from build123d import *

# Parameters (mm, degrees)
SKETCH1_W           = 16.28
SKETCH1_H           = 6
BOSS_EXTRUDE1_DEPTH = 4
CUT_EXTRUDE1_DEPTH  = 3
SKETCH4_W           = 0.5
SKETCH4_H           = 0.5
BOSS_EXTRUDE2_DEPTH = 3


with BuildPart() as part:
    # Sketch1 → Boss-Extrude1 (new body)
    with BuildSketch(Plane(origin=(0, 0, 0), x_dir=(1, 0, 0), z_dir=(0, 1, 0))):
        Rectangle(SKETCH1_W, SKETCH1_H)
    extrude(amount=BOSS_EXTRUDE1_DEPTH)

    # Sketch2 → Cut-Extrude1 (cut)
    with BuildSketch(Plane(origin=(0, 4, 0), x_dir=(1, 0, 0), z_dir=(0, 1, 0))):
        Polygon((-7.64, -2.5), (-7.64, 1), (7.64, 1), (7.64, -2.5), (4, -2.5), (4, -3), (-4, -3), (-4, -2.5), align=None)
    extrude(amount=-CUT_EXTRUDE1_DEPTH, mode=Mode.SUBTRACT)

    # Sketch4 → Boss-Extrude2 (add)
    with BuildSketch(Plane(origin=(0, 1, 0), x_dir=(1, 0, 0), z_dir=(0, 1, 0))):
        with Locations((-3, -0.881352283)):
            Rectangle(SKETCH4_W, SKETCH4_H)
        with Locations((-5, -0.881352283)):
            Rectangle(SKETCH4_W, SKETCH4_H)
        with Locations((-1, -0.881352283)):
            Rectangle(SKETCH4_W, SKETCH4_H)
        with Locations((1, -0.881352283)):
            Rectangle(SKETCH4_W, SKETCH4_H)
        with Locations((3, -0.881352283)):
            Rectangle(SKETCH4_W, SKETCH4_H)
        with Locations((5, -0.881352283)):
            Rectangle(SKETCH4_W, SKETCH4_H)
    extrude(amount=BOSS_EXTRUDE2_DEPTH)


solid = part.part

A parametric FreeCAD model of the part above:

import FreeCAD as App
import Part
import Sketcher

V = App.Vector

doc = App.newDocument("Part")
body = doc.addObject("PartDesign::Body", "Body")

# Sketch on XZ plane
sketch1 = body.newObject("Sketcher::SketchObject", "Sketch")
sketch1.AttachmentSupport = (doc.getObject("XZ_Plane"), [""])
sketch1.MapMode = "FlatFace"
sketch1.addGeometry([
    Part.LineSegment(V(-8.14, -3, 0), V(-8.14, 3, 0)),
    Part.LineSegment(V(-8.14, 3, 0), V(8.14, 3, 0)),
    Part.LineSegment(V(8.14, 3, 0), V(8.14, -3, 0)),
    Part.LineSegment(V(8.14, -3, 0), V(-8.14, -3, 0)),
], False)
sketch1.addConstraint([
    Sketcher.Constraint("Coincident", 0, 2, 1, 1),
    Sketcher.Constraint("Coincident", 1, 2, 2, 1),
    Sketcher.Constraint("Coincident", 2, 2, 3, 1),
    Sketcher.Constraint("Coincident", 3, 2, 0, 1),
    Sketcher.Constraint("Vertical", 0),
    Sketcher.Constraint("Horizontal", 1),
    Sketcher.Constraint("Vertical", 2),
    Sketcher.Constraint("Horizontal", 3),
    Sketcher.Constraint("Symmetric", 0, 2, 2, 2, -1, 1),
    Sketcher.Constraint("DistanceY", 0, 1, 0, 2, 6.0),
    Sketcher.Constraint("DistanceX", 1, 1, 1, 2, 16.28),
])
pad1 = body.newObject("PartDesign::Pad", "Pad")
pad1.Profile = sketch1
pad1.Length = 4
pad1.Reversed = True

# Sketch on XZ plane
sketch2 = body.newObject("Sketcher::SketchObject", "Sketch001")
sketch2.AttachmentSupport = (doc.getObject("XZ_Plane"), [""])
sketch2.MapMode = "FlatFace"
sketch2.AttachmentOffset = App.Placement(V(0, 0, -4), App.Rotation())
sketch2.addGeometry([
    Part.LineSegment(V(-7.64, -1, 0), V(-7.64, 2.5, 0)),  # 0
    Part.LineSegment(V(-7.64, 2.5, 0), V(-4, 2.5, 0)),  # 1
    Part.LineSegment(V(-4, 2.5, 0), V(-4, 3, 0)),  # 2
    Part.LineSegment(V(-4, 3, 0), V(4, 3, 0)),  # 3
    Part.LineSegment(V(4, 3, 0), V(4, 2.5, 0)),  # 4
    Part.LineSegment(V(4, 2.5, 0), V(7.64, 2.5, 0)),  # 5
    Part.LineSegment(V(7.64, 2.5, 0), V(7.64, -1, 0)),  # 6
    Part.LineSegment(V(7.64, -1, 0), V(-7.64, -1, 0)),  # 7
], False)
sketch2.addConstraint([
    Sketcher.Constraint("Coincident", 0, 2, 1, 1),
    Sketcher.Constraint("Coincident", 1, 2, 2, 1),
    Sketcher.Constraint("Coincident", 2, 2, 3, 1),
    Sketcher.Constraint("Coincident", 3, 2, 4, 1),
    Sketcher.Constraint("Coincident", 4, 2, 5, 1),
    Sketcher.Constraint("Coincident", 5, 2, 6, 1),
    Sketcher.Constraint("Coincident", 6, 2, 7, 1),
    Sketcher.Constraint("Coincident", 7, 2, 0, 1),
    Sketcher.Constraint("Vertical", 0),
    Sketcher.Constraint("Horizontal", 1),
    Sketcher.Constraint("Vertical", 2),
    Sketcher.Constraint("Horizontal", 3),
    Sketcher.Constraint("Vertical", 4),
    Sketcher.Constraint("Horizontal", 5),
    Sketcher.Constraint("Vertical", 6),
    Sketcher.Constraint("Horizontal", 7),
    Sketcher.Constraint("Symmetric", 1, 2, 4, 2, -2),
    Sketcher.Constraint("Equal", 1, 5),
    Sketcher.Constraint("DistanceX", 3, 1, 3, 2, 8.0),
    Sketcher.Constraint("DistanceY", 0, 1, 0, 2, 3.5),
    Sketcher.Constraint("DistanceY", 2, 1, 2, 2, 0.5),
    Sketcher.Constraint("DistanceY", -1, 1, 2, 2, 3.0),
    Sketcher.Constraint("DistanceX", 1, 1, 1, 2, 3.64),
])
pocket1 = body.newObject("PartDesign::Pocket", "Pocket")
pocket1.Profile = sketch2
pocket1.Length = 3
pocket1.Reversed = True

# Sketch on XZ plane
sketch3 = body.newObject("Sketcher::SketchObject", "Sketch002")
sketch3.AttachmentSupport = (doc.getObject("XZ_Plane"), [""])
sketch3.MapMode = "FlatFace"
sketch3.AttachmentOffset = App.Placement(V(0, 0, -1), App.Rotation())
sketch3.addGeometry([
    Part.LineSegment(V(-3.25, 0.631352, 0), V(-3.25, 1.131352, 0)),  # 0
    Part.LineSegment(V(-3.25, 1.131352, 0), V(-2.75, 1.131352, 0)),  # 1
    Part.LineSegment(V(-2.75, 1.131352, 0), V(-2.75, 0.631352, 0)),  # 2
    Part.LineSegment(V(-2.75, 0.631352, 0), V(-3.25, 0.631352, 0)),  # 3
    Part.LineSegment(V(-5.25, 0.631352, 0), V(-5.25, 1.131352, 0)),  # 4
    Part.LineSegment(V(-5.25, 1.131352, 0), V(-4.75, 1.131352, 0)),  # 5
    Part.LineSegment(V(-4.75, 1.131352, 0), V(-4.75, 0.631352, 0)),  # 6
    Part.LineSegment(V(-4.75, 0.631352, 0), V(-5.25, 0.631352, 0)),  # 7
    Part.LineSegment(V(-1.25, 0.631352, 0), V(-1.25, 1.131352, 0)),  # 8
    Part.LineSegment(V(-1.25, 1.131352, 0), V(-0.75, 1.131352, 0)),  # 9
    Part.LineSegment(V(-0.75, 1.131352, 0), V(-0.75, 0.631352, 0)),  # 10
    Part.LineSegment(V(-0.75, 0.631352, 0), V(-1.25, 0.631352, 0)),  # 11
    Part.LineSegment(V(0.75, 0.631352, 0), V(0.75, 1.131352, 0)),  # 12
    Part.LineSegment(V(0.75, 1.131352, 0), V(1.25, 1.131352, 0)),  # 13
    Part.LineSegment(V(1.25, 1.131352, 0), V(1.25, 0.631352, 0)),  # 14
    Part.LineSegment(V(1.25, 0.631352, 0), V(0.75, 0.631352, 0)),  # 15
    Part.LineSegment(V(2.75, 0.631352, 0), V(2.75, 1.131352, 0)),  # 16
    Part.LineSegment(V(2.75, 1.131352, 0), V(3.25, 1.131352, 0)),  # 17
    Part.LineSegment(V(3.25, 1.131352, 0), V(3.25, 0.631352, 0)),  # 18
    Part.LineSegment(V(3.25, 0.631352, 0), V(2.75, 0.631352, 0)),  # 19
    Part.LineSegment(V(4.75, 0.631352, 0), V(4.75, 1.131352, 0)),  # 20
    Part.LineSegment(V(4.75, 1.131352, 0), V(5.25, 1.131352, 0)),  # 21
    Part.LineSegment(V(5.25, 1.131352, 0), V(5.25, 0.631352, 0)),  # 22
    Part.LineSegment(V(5.25, 0.631352, 0), V(4.75, 0.631352, 0)),  # 23
], False)
sketch3.addConstraint([
    Sketcher.Constraint("Coincident", 0, 2, 1, 1),
    Sketcher.Constraint("Coincident", 1, 2, 2, 1),
    Sketcher.Constraint("Coincident", 2, 2, 3, 1),
    Sketcher.Constraint("Coincident", 3, 2, 0, 1),
    Sketcher.Constraint("Coincident", 4, 2, 5, 1),
    Sketcher.Constraint("Coincident", 5, 2, 6, 1),
    Sketcher.Constraint("Coincident", 6, 2, 7, 1),
    Sketcher.Constraint("Coincident", 7, 2, 4, 1),
    Sketcher.Constraint("Coincident", 8, 2, 9, 1),
    Sketcher.Constraint("Coincident", 9, 2, 10, 1),
    Sketcher.Constraint("Coincident", 10, 2, 11, 1),
    Sketcher.Constraint("Coincident", 11, 2, 8, 1),
    Sketcher.Constraint("Coincident", 12, 2, 13, 1),
    Sketcher.Constraint("Coincident", 13, 2, 14, 1),
    Sketcher.Constraint("Coincident", 14, 2, 15, 1),
    Sketcher.Constraint("Coincident", 15, 2, 12, 1),
    Sketcher.Constraint("Coincident", 16, 2, 17, 1),
    Sketcher.Constraint("Coincident", 17, 2, 18, 1),
    Sketcher.Constraint("Coincident", 18, 2, 19, 1),
    Sketcher.Constraint("Coincident", 19, 2, 16, 1),
    Sketcher.Constraint("Coincident", 20, 2, 21, 1),
    Sketcher.Constraint("Coincident", 21, 2, 22, 1),
    Sketcher.Constraint("Coincident", 22, 2, 23, 1),
    Sketcher.Constraint("Coincident", 23, 2, 20, 1),
    Sketcher.Constraint("Vertical", 0),
    Sketcher.Constraint("Horizontal", 1),
    Sketcher.Constraint("Vertical", 2),
    Sketcher.Constraint("Horizontal", 3),
    Sketcher.Constraint("Vertical", 4),
    Sketcher.Constraint("Horizontal", 5),
    Sketcher.Constraint("Vertical", 6),
    Sketcher.Constraint("Horizontal", 7),
    Sketcher.Constraint("Vertical", 8),
    Sketcher.Constraint("Horizontal", 9),
    Sketcher.Constraint("Vertical", 10),
    Sketcher.Constraint("Horizontal", 11),
    Sketcher.Constraint("Vertical", 12),
    Sketcher.Constraint("Horizontal", 13),
    Sketcher.Constraint("Vertical", 14),
    Sketcher.Constraint("Horizontal", 15),
    Sketcher.Constraint("Vertical", 16),
    Sketcher.Constraint("Horizontal", 17),
    Sketcher.Constraint("Vertical", 18),
    Sketcher.Constraint("Horizontal", 19),
    Sketcher.Constraint("Vertical", 20),
    Sketcher.Constraint("Horizontal", 21),
    Sketcher.Constraint("Vertical", 22),
    Sketcher.Constraint("Horizontal", 23),
    Sketcher.Constraint("Symmetric", 9, 2, 12, 2, -2),
    Sketcher.Constraint("Symmetric", 11, 2, 14, 2, -2),
    Sketcher.Constraint("Symmetric", 1, 2, 16, 2, -2),
    Sketcher.Constraint("Symmetric", 3, 2, 18, 2, -2),
    Sketcher.Constraint("Symmetric", 5, 2, 20, 2, -2),
    Sketcher.Constraint("Symmetric", 7, 2, 22, 2, -2),
    Sketcher.Constraint("Horizontal", 1, 2, 4, 2),
    Sketcher.Constraint("Horizontal", 3, 2, 6, 2),
    Sketcher.Constraint("Horizontal", 5, 2, 8, 2),
    Sketcher.Constraint("Horizontal", 7, 2, 10, 2),
    Sketcher.Constraint("Equal", 3, 5),
    Sketcher.Constraint("Equal", 7, 9),
    Sketcher.Constraint("Equal", 23, 0),
    Sketcher.Constraint("DistanceX", 1, 1, 1, 2, 0.5),
    Sketcher.Constraint("DistanceX", 4, 2, 0, 2, 2.0),
    Sketcher.Constraint("DistanceX", 0, 2, 8, 2, 2.0),
    Sketcher.Constraint("DistanceX", 8, 2, 12, 2, 2.0),
    Sketcher.Constraint("DistanceY", -1, 1, 0, 2, 1.131352),
])
pad2 = body.newObject("PartDesign::Pad", "Pad001")
pad2.Profile = sketch3
pad2.Length = 3
pad2.Reversed = True

doc.recompute()
